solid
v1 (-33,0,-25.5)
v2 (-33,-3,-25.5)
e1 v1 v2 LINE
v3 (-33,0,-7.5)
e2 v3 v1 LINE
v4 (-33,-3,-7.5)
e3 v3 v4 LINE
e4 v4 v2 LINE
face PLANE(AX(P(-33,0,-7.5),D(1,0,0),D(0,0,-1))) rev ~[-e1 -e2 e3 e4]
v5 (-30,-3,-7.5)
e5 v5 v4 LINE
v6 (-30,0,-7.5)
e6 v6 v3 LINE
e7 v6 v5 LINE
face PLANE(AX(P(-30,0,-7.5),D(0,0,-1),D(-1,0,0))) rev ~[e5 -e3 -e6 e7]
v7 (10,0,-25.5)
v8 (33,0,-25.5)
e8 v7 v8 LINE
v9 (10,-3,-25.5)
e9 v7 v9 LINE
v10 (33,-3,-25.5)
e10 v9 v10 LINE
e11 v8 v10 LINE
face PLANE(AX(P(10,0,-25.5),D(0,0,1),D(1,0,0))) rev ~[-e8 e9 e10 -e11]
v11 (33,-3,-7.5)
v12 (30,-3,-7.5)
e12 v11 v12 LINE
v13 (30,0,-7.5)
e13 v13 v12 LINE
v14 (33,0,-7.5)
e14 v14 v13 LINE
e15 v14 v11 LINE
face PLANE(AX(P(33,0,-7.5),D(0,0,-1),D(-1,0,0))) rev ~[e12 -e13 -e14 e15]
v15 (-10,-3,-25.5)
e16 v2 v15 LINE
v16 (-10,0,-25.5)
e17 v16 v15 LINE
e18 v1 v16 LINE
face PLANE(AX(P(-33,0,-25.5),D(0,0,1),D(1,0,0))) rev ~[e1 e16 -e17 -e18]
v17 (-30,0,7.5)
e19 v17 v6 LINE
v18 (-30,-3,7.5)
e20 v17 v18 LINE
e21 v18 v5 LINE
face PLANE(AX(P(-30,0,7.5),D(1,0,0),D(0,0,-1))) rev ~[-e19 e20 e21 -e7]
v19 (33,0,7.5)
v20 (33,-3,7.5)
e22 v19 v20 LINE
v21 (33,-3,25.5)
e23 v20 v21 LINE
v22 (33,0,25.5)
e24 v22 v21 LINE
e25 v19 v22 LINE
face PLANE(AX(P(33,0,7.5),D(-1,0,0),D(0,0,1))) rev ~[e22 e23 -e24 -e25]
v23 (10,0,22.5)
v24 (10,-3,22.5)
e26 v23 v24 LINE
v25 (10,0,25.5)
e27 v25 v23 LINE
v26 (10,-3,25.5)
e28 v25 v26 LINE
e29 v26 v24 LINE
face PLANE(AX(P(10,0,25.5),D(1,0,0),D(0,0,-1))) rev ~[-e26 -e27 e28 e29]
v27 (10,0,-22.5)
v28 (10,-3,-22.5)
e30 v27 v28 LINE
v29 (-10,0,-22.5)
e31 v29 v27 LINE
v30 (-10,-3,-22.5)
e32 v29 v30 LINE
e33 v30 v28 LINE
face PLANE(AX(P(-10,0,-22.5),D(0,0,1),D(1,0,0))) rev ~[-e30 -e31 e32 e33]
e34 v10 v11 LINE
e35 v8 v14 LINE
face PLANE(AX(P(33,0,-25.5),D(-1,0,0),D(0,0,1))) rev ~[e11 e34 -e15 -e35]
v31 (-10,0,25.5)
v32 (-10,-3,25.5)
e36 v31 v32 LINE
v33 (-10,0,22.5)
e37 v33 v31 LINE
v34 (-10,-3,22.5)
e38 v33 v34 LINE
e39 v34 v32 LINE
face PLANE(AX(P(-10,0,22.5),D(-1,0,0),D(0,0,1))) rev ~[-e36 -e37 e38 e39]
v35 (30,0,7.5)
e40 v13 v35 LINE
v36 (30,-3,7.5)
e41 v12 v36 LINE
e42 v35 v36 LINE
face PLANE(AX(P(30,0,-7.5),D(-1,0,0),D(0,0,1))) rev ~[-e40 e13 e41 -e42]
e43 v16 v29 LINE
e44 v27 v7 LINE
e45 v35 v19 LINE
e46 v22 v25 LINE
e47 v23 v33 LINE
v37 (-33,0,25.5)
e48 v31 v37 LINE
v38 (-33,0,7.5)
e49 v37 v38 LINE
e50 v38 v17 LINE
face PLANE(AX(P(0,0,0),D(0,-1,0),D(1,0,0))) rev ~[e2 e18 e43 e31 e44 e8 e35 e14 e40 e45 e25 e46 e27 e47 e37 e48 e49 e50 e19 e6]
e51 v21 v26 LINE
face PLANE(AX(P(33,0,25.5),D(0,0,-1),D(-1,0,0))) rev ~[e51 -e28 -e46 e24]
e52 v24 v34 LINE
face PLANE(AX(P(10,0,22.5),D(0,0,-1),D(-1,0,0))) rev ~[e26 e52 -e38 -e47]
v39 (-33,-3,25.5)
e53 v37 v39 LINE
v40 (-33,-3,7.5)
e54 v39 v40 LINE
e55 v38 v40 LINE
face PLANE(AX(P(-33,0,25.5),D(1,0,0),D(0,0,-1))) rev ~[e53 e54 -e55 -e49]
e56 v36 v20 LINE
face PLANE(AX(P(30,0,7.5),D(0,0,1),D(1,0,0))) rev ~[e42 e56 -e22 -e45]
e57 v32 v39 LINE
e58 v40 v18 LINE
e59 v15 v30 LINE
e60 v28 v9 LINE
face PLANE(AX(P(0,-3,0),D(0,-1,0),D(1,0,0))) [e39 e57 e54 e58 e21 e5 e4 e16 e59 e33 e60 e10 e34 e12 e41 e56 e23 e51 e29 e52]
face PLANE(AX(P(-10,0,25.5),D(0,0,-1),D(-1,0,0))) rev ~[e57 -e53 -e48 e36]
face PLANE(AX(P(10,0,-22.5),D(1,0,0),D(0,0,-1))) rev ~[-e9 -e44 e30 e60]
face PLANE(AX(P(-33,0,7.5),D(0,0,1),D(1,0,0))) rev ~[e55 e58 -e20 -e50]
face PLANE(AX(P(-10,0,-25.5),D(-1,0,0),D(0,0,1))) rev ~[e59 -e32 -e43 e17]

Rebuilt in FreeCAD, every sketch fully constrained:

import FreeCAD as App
import Part
import Sketcher
Q = App.Units.Quantity


def add_polygon(sketch, points):
    """Adds a closed chain of lines whose ends are joined by coincident constraints."""
    first, n = sketch.GeometryCount, len(points)
    for a, b in zip(points, points[1:] + points[:1]):
        sketch.addGeometry(Part.LineSegment(App.Vector(*a, 0), App.Vector(*b, 0)), False)
    for i in range(n):
        sketch.addConstraint(Sketcher.Constraint("Coincident", first + i, 2, first + (i + 1) % n, 1))

doc = App.newDocument("Part")
params = doc.addObject("Spreadsheet::Sheet", "Params")
for row, (alias, value) in enumerate([
    ("sketch1_width", "20 mm"),
    ("sketch1_width2", "23 mm"),
    ("sketch1_width3", "3 mm"),
    ("sketch1_height", "18 mm"),
    ("sketch1_height2", "15 mm"),
    ("pad1_length", "3 mm"),
], start=1):
    params.set(f"A{row}", alias)
    params.set(f"B{row}", "=" + value)
    params.setAlias(f"B{row}", alias)

body = doc.addObject("PartDesign::Body", "Body")

# Sketch on XZ plane
sketch1 = doc.addObject("Sketcher::SketchObject", "Sketch")
body.addObject(sketch1)
sketch1.AttachmentSupport = (doc.XZ_Plane, [""])
sketch1.MapMode = "FlatFace"
add_polygon(sketch1, [(10, 22.5), (-10, 22.5), (-10, 25.5), (-33, 25.5), (-33, 7.5), (-30, 7.5), (-30, -7.5), (-33, -7.5), (-33, -25.5), (-10, -25.5), (-10, -22.5), (10, -22.5), (10, -25.5), (33, -25.5), (33, -7.5), (30, -7.5), (30, 7.5), (33, 7.5), (33, 25.5), (10, 25.5)])  # lines 0-19
sketch1.addConstraint(Sketcher.Constraint("Horizontal", 0))
sketch1.addConstraint(Sketcher.Constraint("Vertical", 1))
sketch1.addConstraint(Sketcher.Constraint("Horizontal", 2))
sketch1.addConstraint(Sketcher.Constraint("Vertical", 3))
sketch1.addConstraint(Sketcher.Constraint("Horizontal", 4))
sketch1.addConstraint(Sketcher.Constraint("Vertical", 5))
sketch1.addConstraint(Sketcher.Constraint("Horizontal", 6))
sketch1.addConstraint(Sketcher.Constraint("Vertical", 7))
sketch1.addConstraint(Sketcher.Constraint("Horizontal", 8))
sketch1.addConstraint(Sketcher.Constraint("Vertical", 9))
sketch1.addConstraint(Sketcher.Constraint("Horizontal", 10))
sketch1.addConstraint(Sketcher.Constraint("Vertical", 11))
sketch1.addConstraint(Sketcher.Constraint("Horizontal", 12))
sketch1.addConstraint(Sketcher.Constraint("Vertical", 13))
sketch1.addConstraint(Sketcher.Constraint("Horizontal", 14))
sketch1.addConstraint(Sketcher.Constraint("Vertical", 15))
sketch1.addConstraint(Sketcher.Constraint("Horizontal", 16))
sketch1.addConstraint(Sketcher.Constraint("Vertical", 17))
sketch1.addConstraint(Sketcher.Constraint("Horizontal", 18))
sketch1.addConstraint(Sketcher.Constraint("Vertical", 19))
sketch1.addConstraint(Sketcher.Constraint("Symmetric", 0, 2, 10, 2, -1, 1))
sketch1.addConstraint(Sketcher.Constraint("Symmetric", 2, 2, 12, 2, -1, 1))
sketch1.addConstraint(Sketcher.Constraint("Symmetric", 4, 2, 14, 2, -1, 1))
sketch1.addConstraint(Sketcher.Constraint("Symmetric", 6, 2, 16, 2, -1, 1))
sketch1.addConstraint(Sketcher.Constraint("Symmetric", 8, 2, 18, 2, -1, 1))
sketch1.addConstraint(Sketcher.Constraint("Symmetric", 8, 2, 11, 2, -2))
sketch1.addConstraint(Sketcher.Constraint("Symmetric", 6, 2, 13, 2, -2))
sketch1.addConstraint(Sketcher.Constraint("Equal", 16, 1))
sketch1.addConstraint(Sketcher.Constraint("DistanceX", 0, 2, 0, 1, Q("20 mm")))
sketch1.addConstraint(Sketcher.Constraint("DistanceX", 2, 2, 2, 1, Q("23 mm")))
sketch1.addConstraint(Sketcher.Constraint("DistanceX", 4, 1, 4, 2, Q("3 mm")))
sketch1.addConstraint(Sketcher.Constraint("DistanceY", 3, 2, 3, 1, Q("18 mm")))
sketch1.addConstraint(Sketcher.Constraint("DistanceY", 5, 2, 5, 1, Q("15 mm")))
sketch1.setExpression("Constraints[48]", "Params.sketch1_width")
sketch1.setExpression("Constraints[49]", "Params.sketch1_width2")
sketch1.setExpression("Constraints[50]", "Params.sketch1_width3")
sketch1.setExpression("Constraints[51]", "Params.sketch1_height")
sketch1.setExpression("Constraints[52]", "Params.sketch1_height2")
pad1 = doc.addObject("PartDesign::Pad", "Pad")
body.addObject(pad1)
pad1.Profile = sketch1
pad1.setExpression("Length", "Params.pad1_length")

doc.recompute()
